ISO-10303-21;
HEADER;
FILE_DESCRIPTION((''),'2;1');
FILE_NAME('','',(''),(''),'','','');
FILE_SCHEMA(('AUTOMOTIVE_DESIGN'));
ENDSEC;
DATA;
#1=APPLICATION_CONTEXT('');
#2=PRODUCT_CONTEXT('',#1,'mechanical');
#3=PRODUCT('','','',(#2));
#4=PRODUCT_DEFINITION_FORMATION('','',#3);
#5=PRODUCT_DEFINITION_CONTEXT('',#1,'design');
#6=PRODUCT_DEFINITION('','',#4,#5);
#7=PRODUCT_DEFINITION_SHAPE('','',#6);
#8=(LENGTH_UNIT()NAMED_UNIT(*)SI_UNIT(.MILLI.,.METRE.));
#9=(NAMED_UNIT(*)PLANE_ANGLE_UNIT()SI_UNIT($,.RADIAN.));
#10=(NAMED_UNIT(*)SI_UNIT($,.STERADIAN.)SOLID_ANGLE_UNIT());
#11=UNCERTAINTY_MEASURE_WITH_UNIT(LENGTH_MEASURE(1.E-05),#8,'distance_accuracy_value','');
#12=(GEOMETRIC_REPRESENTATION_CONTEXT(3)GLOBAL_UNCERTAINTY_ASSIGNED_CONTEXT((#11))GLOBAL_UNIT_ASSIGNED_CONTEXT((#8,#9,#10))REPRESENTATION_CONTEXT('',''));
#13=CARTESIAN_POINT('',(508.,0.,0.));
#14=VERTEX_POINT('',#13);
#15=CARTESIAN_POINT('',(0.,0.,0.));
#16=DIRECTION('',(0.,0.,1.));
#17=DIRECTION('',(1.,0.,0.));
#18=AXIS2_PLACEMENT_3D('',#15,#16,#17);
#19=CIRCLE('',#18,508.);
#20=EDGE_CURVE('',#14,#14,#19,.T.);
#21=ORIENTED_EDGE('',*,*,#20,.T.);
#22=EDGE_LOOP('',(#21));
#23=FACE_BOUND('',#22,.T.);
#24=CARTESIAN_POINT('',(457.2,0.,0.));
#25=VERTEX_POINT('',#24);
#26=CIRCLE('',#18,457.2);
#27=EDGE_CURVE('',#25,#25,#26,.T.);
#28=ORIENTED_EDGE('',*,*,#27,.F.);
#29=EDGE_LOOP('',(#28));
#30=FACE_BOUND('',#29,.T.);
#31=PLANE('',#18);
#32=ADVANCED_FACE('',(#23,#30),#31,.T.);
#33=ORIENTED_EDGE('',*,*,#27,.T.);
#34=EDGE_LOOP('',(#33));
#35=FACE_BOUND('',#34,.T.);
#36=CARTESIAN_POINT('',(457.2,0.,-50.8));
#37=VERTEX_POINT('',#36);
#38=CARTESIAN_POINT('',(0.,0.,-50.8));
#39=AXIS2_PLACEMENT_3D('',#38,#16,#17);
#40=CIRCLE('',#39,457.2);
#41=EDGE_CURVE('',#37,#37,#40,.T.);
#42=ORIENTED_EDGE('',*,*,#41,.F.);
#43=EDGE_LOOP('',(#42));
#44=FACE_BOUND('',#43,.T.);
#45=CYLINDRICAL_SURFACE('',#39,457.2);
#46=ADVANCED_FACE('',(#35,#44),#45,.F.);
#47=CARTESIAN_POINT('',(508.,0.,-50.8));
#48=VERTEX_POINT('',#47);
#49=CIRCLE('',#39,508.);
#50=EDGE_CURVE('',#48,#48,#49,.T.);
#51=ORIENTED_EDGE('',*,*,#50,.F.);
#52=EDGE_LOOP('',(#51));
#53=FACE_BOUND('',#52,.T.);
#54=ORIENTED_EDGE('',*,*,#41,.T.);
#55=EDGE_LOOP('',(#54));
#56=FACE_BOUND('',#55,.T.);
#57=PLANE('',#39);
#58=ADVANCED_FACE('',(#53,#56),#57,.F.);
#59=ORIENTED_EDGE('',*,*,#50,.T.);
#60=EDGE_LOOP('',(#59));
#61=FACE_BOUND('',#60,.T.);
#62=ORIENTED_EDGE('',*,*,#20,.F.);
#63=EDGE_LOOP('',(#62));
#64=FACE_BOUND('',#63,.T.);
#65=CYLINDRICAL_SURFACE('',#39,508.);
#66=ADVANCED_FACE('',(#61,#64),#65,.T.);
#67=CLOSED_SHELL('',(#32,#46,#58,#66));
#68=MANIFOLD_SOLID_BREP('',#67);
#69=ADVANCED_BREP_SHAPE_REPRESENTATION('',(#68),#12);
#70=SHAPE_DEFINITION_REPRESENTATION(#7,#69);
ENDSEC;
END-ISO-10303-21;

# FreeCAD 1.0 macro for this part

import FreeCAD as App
import Part
import Sketcher
Q = App.Units.Quantity

doc = App.newDocument("Part")
body = doc.addObject("PartDesign::Body", "Body")

# Sketch on XY plane
sketch1 = body.newObject("Sketcher::SketchObject", "Sketch")
sketch1.AttachmentSupport = (doc.getObject("XY_Plane"), [""])
sketch1.MapMode = "FlatFace"
sketch1.addGeometry(Part.Circle(App.Vector(0, 0, 0), App.Vector(0, 0, 1), 508), False)
sketch1.addGeometry(Part.Circle(App.Vector(0, 0, 0), App.Vector(0, 0, 1), 457), False)
sketch1.addConstraint(Sketcher.Constraint("Coincident", 0, 3, -1, 1))
sketch1.addConstraint(Sketcher.Constraint("Coincident", 1, 3, -1, 1))
sketch1.addConstraint(Sketcher.Constraint("Diameter", 0, Q("40 in")))
sketch1.addConstraint(Sketcher.Constraint("Diameter", 1, Q("36 in")))
pad1 = body.newObject("PartDesign::Pad", "Pad")
pad1.Profile = sketch1
pad1.Length = Q("2 in")
pad1.Reversed = True

doc.recompute()
